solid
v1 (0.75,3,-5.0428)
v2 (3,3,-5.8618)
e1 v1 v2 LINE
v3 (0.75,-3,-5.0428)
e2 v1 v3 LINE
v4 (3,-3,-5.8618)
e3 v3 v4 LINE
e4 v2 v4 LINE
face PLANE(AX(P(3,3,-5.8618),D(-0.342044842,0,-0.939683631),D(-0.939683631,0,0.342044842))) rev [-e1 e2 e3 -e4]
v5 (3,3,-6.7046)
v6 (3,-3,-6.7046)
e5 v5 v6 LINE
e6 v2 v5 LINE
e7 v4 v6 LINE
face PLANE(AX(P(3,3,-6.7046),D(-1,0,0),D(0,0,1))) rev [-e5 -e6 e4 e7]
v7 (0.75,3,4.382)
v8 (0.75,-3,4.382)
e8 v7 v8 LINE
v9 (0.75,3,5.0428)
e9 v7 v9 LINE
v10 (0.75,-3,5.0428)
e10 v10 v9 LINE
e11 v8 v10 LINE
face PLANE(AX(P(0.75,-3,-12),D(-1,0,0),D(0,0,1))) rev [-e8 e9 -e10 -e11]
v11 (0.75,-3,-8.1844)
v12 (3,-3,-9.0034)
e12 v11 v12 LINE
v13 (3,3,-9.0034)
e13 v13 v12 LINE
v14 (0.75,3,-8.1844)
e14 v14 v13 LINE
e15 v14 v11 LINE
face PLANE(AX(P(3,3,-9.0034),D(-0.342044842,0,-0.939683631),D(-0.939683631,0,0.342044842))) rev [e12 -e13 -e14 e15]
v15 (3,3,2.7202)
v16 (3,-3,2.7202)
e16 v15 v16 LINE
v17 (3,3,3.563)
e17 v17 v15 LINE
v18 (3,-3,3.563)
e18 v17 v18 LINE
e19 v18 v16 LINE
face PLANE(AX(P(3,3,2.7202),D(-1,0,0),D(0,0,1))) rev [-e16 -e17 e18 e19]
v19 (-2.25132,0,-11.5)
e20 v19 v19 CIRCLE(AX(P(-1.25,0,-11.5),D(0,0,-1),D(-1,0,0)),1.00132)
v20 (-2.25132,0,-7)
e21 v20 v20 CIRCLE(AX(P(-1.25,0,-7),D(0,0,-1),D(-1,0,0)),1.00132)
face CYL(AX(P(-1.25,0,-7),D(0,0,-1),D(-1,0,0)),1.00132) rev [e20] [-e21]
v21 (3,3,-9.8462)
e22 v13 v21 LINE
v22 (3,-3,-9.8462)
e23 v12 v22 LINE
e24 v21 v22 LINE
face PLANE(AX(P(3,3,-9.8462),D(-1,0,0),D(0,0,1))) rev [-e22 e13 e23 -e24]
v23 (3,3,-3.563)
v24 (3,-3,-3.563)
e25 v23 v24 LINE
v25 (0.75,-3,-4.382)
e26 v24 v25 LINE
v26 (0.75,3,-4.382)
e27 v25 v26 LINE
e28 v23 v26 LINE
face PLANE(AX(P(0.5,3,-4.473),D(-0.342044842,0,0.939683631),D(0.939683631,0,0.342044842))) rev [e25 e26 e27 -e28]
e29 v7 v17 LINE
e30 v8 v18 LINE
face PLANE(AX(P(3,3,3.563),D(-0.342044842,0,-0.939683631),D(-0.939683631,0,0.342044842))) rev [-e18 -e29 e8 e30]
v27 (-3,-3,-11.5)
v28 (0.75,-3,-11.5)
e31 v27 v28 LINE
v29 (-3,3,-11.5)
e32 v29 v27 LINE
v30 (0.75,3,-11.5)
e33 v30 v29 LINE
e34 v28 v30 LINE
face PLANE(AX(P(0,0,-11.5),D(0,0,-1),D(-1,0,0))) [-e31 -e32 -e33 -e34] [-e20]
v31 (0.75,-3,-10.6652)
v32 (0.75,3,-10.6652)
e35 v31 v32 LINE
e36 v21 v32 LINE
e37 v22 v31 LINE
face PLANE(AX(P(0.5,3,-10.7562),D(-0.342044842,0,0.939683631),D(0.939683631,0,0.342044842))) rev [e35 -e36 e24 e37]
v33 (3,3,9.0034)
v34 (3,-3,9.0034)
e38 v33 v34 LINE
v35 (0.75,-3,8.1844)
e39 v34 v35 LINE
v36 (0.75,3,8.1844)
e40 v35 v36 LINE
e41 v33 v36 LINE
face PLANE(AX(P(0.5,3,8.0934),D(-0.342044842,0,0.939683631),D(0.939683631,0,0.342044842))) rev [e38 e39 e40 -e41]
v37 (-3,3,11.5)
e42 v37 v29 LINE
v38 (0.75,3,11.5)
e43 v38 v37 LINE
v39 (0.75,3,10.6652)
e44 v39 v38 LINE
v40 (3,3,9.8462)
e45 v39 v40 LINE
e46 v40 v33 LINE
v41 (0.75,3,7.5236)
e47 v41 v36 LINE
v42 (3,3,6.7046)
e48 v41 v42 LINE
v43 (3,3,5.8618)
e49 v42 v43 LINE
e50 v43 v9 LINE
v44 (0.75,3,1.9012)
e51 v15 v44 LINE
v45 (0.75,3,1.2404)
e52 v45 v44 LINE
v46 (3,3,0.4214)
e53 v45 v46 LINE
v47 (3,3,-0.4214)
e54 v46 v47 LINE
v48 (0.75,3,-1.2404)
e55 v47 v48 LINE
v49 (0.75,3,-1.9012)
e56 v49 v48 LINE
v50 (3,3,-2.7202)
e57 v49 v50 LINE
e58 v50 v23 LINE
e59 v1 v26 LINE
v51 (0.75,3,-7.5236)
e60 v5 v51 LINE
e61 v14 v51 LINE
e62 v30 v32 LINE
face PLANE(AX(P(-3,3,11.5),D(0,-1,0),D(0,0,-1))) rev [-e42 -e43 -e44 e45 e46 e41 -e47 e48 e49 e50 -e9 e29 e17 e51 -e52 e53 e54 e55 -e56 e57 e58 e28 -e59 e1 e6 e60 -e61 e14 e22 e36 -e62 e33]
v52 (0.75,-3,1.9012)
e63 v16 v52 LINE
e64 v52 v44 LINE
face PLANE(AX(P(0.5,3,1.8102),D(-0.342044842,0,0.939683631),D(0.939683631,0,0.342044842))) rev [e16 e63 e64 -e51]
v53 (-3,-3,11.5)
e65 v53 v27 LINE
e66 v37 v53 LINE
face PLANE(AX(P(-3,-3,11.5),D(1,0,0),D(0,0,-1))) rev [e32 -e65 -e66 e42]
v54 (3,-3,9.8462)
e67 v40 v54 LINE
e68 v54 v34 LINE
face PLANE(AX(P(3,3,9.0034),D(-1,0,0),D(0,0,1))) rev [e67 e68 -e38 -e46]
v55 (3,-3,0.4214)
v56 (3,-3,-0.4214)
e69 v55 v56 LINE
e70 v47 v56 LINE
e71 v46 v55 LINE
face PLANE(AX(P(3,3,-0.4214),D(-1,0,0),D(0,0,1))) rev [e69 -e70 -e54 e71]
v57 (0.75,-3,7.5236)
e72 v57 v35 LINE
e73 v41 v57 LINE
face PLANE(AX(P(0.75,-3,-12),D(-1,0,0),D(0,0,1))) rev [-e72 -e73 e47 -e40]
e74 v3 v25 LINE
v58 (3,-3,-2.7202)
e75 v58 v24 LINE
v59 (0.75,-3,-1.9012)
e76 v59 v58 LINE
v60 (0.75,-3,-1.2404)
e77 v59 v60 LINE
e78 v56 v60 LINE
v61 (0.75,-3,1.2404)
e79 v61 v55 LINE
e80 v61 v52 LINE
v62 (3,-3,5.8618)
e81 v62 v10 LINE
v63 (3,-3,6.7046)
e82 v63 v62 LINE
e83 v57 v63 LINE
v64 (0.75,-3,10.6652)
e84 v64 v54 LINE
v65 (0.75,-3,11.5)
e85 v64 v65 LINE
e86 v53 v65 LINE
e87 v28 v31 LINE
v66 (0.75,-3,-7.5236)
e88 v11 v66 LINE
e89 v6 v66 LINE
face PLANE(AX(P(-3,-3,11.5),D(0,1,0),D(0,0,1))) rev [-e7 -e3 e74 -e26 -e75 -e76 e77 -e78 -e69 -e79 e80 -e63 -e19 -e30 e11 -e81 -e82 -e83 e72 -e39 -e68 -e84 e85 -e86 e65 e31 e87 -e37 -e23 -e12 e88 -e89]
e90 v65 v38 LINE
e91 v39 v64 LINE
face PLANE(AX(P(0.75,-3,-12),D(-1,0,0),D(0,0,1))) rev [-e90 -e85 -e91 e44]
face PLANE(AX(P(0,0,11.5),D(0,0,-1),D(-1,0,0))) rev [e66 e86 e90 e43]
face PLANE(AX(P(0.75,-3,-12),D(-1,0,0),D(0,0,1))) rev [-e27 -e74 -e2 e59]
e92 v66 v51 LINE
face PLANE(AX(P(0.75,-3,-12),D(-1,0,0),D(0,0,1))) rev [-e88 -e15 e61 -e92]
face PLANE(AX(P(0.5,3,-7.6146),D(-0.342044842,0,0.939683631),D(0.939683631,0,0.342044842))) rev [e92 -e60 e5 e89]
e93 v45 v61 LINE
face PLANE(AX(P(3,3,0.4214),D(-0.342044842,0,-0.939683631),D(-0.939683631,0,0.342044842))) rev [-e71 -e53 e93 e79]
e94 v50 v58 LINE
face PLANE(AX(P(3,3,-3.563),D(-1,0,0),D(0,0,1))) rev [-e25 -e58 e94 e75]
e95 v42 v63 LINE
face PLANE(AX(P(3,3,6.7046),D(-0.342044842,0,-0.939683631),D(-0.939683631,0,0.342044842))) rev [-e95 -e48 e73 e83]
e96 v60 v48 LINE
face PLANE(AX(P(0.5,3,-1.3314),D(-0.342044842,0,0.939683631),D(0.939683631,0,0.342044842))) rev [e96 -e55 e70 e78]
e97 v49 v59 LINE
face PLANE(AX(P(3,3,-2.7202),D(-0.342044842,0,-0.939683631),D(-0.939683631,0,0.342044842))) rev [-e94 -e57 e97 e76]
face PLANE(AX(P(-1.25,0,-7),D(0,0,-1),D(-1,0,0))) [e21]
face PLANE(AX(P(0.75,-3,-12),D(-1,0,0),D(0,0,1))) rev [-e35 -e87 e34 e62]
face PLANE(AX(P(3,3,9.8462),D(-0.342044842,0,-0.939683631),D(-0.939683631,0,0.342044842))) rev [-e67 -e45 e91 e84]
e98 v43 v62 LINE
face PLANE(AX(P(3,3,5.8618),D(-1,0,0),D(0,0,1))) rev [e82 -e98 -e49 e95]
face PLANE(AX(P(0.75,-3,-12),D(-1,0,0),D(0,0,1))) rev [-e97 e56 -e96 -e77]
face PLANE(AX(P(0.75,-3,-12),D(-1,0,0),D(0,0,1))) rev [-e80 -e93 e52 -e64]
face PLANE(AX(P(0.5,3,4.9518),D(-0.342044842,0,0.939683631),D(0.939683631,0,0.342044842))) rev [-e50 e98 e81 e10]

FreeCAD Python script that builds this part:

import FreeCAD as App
import Part
import Sketcher

V = App.Vector
Q = App.Units.Quantity


def add_polygon(sketch, points):
    """Adds a closed chain of lines whose ends are joined by coincident constraints."""
    first, n = sketch.GeometryCount, len(points)
    for a, b in zip(points, points[1:] + points[:1]):
        sketch.addGeometry(Part.LineSegment(App.Vector(*a, 0), App.Vector(*b, 0)), False)
    for i in range(n):
        sketch.addConstraint(Sketcher.Constraint("Coincident", first + i, 2, first + (i + 1) % n, 1))

doc = App.newDocument("Part")
body = doc.addObject("PartDesign::Body", "Body")

sketch1 = body.newObject("Sketcher::SketchObject", "Sketch")
sketch1.AttachmentSupport = (doc.getObject("XY_Plane"), [""])
sketch1.MapMode = "FlatFace"
add_polygon(sketch1, [(-3, 3), (-3, -3), (3, -3), (3, 3)])
sketch1.addConstraint(Sketcher.Constraint("Vertical", 0))
sketch1.addConstraint(Sketcher.Constraint("Horizontal", 1))
sketch1.addConstraint(Sketcher.Constraint("Vertical", 2))
sketch1.addConstraint(Sketcher.Constraint("Horizontal", 3))
sketch1.addConstraint(Sketcher.Constraint("Symmetric", 0, 2, 2, 2, -1, 1))
sketch1.addConstraint(Sketcher.Constraint("Equal", 3, 0))
sketch1.addConstraint(Sketcher.Constraint("DistanceX", 1, 1, 1, 2, Q("6 mm")))
pad1 = body.newObject("PartDesign::Pad", "Pad")
pad1.Profile = sketch1
pad1.Length = 23
pad1.Midplane = True

sketch2 = body.newObject("Sketcher::SketchObject", "Sketch001")
sketch2.AttachmentSupport = (doc.getObject("XZ_Plane"), [""])
sketch2.MapMode = "FlatFace"
add_polygon(sketch2, [(0.75, -12), (0.75, 12), (3.5, 12), (3.5, -12)])
sketch2.addConstraint(Sketcher.Constraint("Vertical", 0))
sketch2.addConstraint(Sketcher.Constraint("Horizontal", 1))
sketch2.addConstraint(Sketcher.Constraint("Vertical", 2))
sketch2.addConstraint(Sketcher.Constraint("Horizontal", 3))
sketch2.addConstraint(Sketcher.Constraint("DistanceY", 0, 1, 0, 2, Q("24 mm")))
sketch2.addConstraint(Sketcher.Constraint("DistanceY", -1, 1, 0, 2, Q("12 mm")))
sketch2.addConstraint(Sketcher.Constraint("DistanceX", 1, 1, 1, 2, Q("2.75 mm")))
sketch2.addConstraint(Sketcher.Constraint("DistanceX", -1, 1, 1, 2, Q("3.5 mm")))
pocket1 = body.newObject("PartDesign::Pocket", "Pocket")
pocket1.Profile = sketch2
pocket1.Type = "ThroughAll"
pocket1.Midplane = True

sketch3 = body.newObject("Sketcher::SketchObject", "Sketch002")
sketch3.AttachmentSupport = (doc.getObject("XZ_Plane"), [""])
sketch3.MapMode = "FlatFace"
add_polygon(sketch3, [(3, -0.4214), (0.5, -1.3314), (0.5, 1.3314), (3, 0.4214)])
add_polygon(sketch3, [(3, -3.563), (0.5, -4.473), (0.5, -1.8102), (3, -2.7202)])
add_polygon(sketch3, [(3, 2.7202), (0.5, 1.8102), (0.5, 4.473), (3, 3.563)])
add_polygon(sketch3, [(3, -6.7046), (0.5, -7.6146), (0.5, -4.9518), (3, -5.8618)])
add_polygon(sketch3, [(3, 5.8618), (0.5, 4.9518), (0.5, 7.6146), (3, 6.7046)])
add_polygon(sketch3, [(3, -9.8462), (0.5, -10.7562), (0.5, -8.0934), (3, -9.0034)])
add_polygon(sketch3, [(3, 9.0034), (0.5, 8.0934), (0.5, 10.7562), (3, 9.8462)])
sketch3.addConstraint(Sketcher.Constraint("Vertical", 1))
sketch3.addConstraint(Sketcher.Constraint("Vertical", 3))
sketch3.addConstraint(Sketcher.Constraint("Vertical", 5))
sketch3.addConstraint(Sketcher.Constraint("Vertical", 7))
sketch3.addConstraint(Sketcher.Constraint("Vertical", 9))
sketch3.addConstraint(Sketcher.Constraint("Vertical", 11))
sketch3.addConstraint(Sketcher.Constraint("Vertical", 13))
sketch3.addConstraint(Sketcher.Constraint("Vertical", 15))
sketch3.addConstraint(Sketcher.Constraint("Vertical", 17))
sketch3.addConstraint(Sketcher.Constraint("Vertical", 19))
sketch3.addConstraint(Sketcher.Constraint("Vertical", 21))
sketch3.addConstraint(Sketcher.Constraint("Vertical", 23))
sketch3.addConstraint(Sketcher.Constraint("Vertical", 25))
sketch3.addConstraint(Sketcher.Constraint("Vertical", 27))
sketch3.addConstraint(Sketcher.Constraint("Symmetric", 5, 2, 8, 2, -1))
sketch3.addConstraint(Sketcher.Constraint("Symmetric", 7, 2, 10, 2, -1))
sketch3.addConstraint(Sketcher.Constraint("Symmetric", 13, 2, 16, 2, -1))
sketch3.addConstraint(Sketcher.Constraint("Symmetric", 15, 2, 18, 2, -1))
sketch3.addConstraint(Sketcher.Constraint("Symmetric", 21, 2, 24, 2, -1))
sketch3.addConstraint(Sketcher.Constraint("Symmetric", 23, 2, 26, 2, -1))
sketch3.addConstraint(Sketcher.Constraint("Parallel", 0, 4))
sketch3.addConstraint(Sketcher.Constraint("Parallel", 2, 6))
sketch3.addConstraint(Sketcher.Constraint("Parallel", 4, 8))
sketch3.addConstraint(Sketcher.Constraint("Parallel", 6, 10))
sketch3.addConstraint(Sketcher.Constraint("Parallel", 8, 12))
sketch3.addConstraint(Sketcher.Constraint("Parallel", 10, 14))
sketch3.addConstraint(Sketcher.Constraint("Parallel", 12, 16))
sketch3.addConstraint(Sketcher.Constraint("Parallel", 14, 18))
sketch3.addConstraint(Sketcher.Constraint("Parallel", 16, 20))
sketch3.addConstraint(Sketcher.Constraint("Parallel", 18, 22))
sketch3.addConstraint(Sketcher.Constraint("Parallel", 20, 24))
sketch3.addConstraint(Sketcher.Constraint("Parallel", 22, 26))
sketch3.addConstraint(Sketcher.Constraint("Vertical", 1, 2, 4, 2))
sketch3.addConstraint(Sketcher.Constraint("Vertical", 3, 2, 6, 2))
sketch3.addConstraint(Sketcher.Constraint("Vertical", 9, 2, 12, 2))
sketch3.addConstraint(Sketcher.Constraint("Vertical", 11, 2, 14, 2))
sketch3.addConstraint(Sketcher.Constraint("Vertical", 17, 2, 20, 2))
sketch3.addConstraint(Sketcher.Constraint("Vertical", 19, 2, 22, 2))
sketch3.addConstraint(Sketcher.Constraint("Equal", 1, 5))
sketch3.addConstraint(Sketcher.Constraint("Equal", 5, 9))
sketch3.addConstraint(Sketcher.Constraint("Equal", 9, 13))
sketch3.addConstraint(Sketcher.Constraint("Equal", 17, 21))
sketch3.addConstraint(Sketcher.Constraint("DistanceX", -1, 1, 2, 2, Q("3 mm")))
sketch3.addConstraint(Sketcher.Constraint("DistanceX", -1, 1, 0, 2, Q("0.5 mm")))
sketch3.addConstraint(Sketcher.Constraint("DistanceY", 2, 2, 1, 2, Q("0.91 mm")))
sketch3.addConstraint(Sketcher.Constraint("DistanceY", 1, 1, 1, 2, Q("2.6628 mm")))
sketch3.addConstraint(Sketcher.Constraint("DistanceY", 4, 2, -1, 1, Q("4.473 mm")))
sketch3.addConstraint(Sketcher.Constraint("DistanceY", 0, 2, -1, 1, Q("1.3314 mm")))
sketch3.addConstraint(Sketcher.Constraint("DistanceY", 12, 2, -1, 1, Q("7.6146 mm")))
sketch3.addConstraint(Sketcher.Constraint("DistanceY", 20, 2, -1, 1, Q("10.7562 mm")))
pad2 = body.newObject("PartDesign::Pad", "Pad001")
pad2.Profile = sketch3
pad2.Length = 6
pad2.Midplane = True

sketch4 = body.newObject("Sketcher::SketchObject", "Sketch003")
sketch4.AttachmentSupport = (doc.getObject("XY_Plane"), [""])
sketch4.MapMode = "FlatFace"
sketch4.AttachmentOffset = App.Placement(V(0, 0, -11.5), App.Rotation())
sketch4.addGeometry(Part.Circle(V(-1.25, 0, 0), V(0, 0, 1), 1.00132), False)
sketch4.addConstraint(Sketcher.Constraint("PointOnObject", 0, 3, -1))
sketch4.addConstraint(Sketcher.Constraint("Diameter", 0, Q("2.002641 mm")))
sketch4.addConstraint(Sketcher.Constraint("DistanceX", 0, 3, -1, 1, Q("1.25 mm")))
pocket2 = body.newObject("PartDesign::Pocket", "Pocket001")
pocket2.Profile = sketch4
pocket2.Length = 4.5
pocket2.Reversed = True

doc.recompute()
